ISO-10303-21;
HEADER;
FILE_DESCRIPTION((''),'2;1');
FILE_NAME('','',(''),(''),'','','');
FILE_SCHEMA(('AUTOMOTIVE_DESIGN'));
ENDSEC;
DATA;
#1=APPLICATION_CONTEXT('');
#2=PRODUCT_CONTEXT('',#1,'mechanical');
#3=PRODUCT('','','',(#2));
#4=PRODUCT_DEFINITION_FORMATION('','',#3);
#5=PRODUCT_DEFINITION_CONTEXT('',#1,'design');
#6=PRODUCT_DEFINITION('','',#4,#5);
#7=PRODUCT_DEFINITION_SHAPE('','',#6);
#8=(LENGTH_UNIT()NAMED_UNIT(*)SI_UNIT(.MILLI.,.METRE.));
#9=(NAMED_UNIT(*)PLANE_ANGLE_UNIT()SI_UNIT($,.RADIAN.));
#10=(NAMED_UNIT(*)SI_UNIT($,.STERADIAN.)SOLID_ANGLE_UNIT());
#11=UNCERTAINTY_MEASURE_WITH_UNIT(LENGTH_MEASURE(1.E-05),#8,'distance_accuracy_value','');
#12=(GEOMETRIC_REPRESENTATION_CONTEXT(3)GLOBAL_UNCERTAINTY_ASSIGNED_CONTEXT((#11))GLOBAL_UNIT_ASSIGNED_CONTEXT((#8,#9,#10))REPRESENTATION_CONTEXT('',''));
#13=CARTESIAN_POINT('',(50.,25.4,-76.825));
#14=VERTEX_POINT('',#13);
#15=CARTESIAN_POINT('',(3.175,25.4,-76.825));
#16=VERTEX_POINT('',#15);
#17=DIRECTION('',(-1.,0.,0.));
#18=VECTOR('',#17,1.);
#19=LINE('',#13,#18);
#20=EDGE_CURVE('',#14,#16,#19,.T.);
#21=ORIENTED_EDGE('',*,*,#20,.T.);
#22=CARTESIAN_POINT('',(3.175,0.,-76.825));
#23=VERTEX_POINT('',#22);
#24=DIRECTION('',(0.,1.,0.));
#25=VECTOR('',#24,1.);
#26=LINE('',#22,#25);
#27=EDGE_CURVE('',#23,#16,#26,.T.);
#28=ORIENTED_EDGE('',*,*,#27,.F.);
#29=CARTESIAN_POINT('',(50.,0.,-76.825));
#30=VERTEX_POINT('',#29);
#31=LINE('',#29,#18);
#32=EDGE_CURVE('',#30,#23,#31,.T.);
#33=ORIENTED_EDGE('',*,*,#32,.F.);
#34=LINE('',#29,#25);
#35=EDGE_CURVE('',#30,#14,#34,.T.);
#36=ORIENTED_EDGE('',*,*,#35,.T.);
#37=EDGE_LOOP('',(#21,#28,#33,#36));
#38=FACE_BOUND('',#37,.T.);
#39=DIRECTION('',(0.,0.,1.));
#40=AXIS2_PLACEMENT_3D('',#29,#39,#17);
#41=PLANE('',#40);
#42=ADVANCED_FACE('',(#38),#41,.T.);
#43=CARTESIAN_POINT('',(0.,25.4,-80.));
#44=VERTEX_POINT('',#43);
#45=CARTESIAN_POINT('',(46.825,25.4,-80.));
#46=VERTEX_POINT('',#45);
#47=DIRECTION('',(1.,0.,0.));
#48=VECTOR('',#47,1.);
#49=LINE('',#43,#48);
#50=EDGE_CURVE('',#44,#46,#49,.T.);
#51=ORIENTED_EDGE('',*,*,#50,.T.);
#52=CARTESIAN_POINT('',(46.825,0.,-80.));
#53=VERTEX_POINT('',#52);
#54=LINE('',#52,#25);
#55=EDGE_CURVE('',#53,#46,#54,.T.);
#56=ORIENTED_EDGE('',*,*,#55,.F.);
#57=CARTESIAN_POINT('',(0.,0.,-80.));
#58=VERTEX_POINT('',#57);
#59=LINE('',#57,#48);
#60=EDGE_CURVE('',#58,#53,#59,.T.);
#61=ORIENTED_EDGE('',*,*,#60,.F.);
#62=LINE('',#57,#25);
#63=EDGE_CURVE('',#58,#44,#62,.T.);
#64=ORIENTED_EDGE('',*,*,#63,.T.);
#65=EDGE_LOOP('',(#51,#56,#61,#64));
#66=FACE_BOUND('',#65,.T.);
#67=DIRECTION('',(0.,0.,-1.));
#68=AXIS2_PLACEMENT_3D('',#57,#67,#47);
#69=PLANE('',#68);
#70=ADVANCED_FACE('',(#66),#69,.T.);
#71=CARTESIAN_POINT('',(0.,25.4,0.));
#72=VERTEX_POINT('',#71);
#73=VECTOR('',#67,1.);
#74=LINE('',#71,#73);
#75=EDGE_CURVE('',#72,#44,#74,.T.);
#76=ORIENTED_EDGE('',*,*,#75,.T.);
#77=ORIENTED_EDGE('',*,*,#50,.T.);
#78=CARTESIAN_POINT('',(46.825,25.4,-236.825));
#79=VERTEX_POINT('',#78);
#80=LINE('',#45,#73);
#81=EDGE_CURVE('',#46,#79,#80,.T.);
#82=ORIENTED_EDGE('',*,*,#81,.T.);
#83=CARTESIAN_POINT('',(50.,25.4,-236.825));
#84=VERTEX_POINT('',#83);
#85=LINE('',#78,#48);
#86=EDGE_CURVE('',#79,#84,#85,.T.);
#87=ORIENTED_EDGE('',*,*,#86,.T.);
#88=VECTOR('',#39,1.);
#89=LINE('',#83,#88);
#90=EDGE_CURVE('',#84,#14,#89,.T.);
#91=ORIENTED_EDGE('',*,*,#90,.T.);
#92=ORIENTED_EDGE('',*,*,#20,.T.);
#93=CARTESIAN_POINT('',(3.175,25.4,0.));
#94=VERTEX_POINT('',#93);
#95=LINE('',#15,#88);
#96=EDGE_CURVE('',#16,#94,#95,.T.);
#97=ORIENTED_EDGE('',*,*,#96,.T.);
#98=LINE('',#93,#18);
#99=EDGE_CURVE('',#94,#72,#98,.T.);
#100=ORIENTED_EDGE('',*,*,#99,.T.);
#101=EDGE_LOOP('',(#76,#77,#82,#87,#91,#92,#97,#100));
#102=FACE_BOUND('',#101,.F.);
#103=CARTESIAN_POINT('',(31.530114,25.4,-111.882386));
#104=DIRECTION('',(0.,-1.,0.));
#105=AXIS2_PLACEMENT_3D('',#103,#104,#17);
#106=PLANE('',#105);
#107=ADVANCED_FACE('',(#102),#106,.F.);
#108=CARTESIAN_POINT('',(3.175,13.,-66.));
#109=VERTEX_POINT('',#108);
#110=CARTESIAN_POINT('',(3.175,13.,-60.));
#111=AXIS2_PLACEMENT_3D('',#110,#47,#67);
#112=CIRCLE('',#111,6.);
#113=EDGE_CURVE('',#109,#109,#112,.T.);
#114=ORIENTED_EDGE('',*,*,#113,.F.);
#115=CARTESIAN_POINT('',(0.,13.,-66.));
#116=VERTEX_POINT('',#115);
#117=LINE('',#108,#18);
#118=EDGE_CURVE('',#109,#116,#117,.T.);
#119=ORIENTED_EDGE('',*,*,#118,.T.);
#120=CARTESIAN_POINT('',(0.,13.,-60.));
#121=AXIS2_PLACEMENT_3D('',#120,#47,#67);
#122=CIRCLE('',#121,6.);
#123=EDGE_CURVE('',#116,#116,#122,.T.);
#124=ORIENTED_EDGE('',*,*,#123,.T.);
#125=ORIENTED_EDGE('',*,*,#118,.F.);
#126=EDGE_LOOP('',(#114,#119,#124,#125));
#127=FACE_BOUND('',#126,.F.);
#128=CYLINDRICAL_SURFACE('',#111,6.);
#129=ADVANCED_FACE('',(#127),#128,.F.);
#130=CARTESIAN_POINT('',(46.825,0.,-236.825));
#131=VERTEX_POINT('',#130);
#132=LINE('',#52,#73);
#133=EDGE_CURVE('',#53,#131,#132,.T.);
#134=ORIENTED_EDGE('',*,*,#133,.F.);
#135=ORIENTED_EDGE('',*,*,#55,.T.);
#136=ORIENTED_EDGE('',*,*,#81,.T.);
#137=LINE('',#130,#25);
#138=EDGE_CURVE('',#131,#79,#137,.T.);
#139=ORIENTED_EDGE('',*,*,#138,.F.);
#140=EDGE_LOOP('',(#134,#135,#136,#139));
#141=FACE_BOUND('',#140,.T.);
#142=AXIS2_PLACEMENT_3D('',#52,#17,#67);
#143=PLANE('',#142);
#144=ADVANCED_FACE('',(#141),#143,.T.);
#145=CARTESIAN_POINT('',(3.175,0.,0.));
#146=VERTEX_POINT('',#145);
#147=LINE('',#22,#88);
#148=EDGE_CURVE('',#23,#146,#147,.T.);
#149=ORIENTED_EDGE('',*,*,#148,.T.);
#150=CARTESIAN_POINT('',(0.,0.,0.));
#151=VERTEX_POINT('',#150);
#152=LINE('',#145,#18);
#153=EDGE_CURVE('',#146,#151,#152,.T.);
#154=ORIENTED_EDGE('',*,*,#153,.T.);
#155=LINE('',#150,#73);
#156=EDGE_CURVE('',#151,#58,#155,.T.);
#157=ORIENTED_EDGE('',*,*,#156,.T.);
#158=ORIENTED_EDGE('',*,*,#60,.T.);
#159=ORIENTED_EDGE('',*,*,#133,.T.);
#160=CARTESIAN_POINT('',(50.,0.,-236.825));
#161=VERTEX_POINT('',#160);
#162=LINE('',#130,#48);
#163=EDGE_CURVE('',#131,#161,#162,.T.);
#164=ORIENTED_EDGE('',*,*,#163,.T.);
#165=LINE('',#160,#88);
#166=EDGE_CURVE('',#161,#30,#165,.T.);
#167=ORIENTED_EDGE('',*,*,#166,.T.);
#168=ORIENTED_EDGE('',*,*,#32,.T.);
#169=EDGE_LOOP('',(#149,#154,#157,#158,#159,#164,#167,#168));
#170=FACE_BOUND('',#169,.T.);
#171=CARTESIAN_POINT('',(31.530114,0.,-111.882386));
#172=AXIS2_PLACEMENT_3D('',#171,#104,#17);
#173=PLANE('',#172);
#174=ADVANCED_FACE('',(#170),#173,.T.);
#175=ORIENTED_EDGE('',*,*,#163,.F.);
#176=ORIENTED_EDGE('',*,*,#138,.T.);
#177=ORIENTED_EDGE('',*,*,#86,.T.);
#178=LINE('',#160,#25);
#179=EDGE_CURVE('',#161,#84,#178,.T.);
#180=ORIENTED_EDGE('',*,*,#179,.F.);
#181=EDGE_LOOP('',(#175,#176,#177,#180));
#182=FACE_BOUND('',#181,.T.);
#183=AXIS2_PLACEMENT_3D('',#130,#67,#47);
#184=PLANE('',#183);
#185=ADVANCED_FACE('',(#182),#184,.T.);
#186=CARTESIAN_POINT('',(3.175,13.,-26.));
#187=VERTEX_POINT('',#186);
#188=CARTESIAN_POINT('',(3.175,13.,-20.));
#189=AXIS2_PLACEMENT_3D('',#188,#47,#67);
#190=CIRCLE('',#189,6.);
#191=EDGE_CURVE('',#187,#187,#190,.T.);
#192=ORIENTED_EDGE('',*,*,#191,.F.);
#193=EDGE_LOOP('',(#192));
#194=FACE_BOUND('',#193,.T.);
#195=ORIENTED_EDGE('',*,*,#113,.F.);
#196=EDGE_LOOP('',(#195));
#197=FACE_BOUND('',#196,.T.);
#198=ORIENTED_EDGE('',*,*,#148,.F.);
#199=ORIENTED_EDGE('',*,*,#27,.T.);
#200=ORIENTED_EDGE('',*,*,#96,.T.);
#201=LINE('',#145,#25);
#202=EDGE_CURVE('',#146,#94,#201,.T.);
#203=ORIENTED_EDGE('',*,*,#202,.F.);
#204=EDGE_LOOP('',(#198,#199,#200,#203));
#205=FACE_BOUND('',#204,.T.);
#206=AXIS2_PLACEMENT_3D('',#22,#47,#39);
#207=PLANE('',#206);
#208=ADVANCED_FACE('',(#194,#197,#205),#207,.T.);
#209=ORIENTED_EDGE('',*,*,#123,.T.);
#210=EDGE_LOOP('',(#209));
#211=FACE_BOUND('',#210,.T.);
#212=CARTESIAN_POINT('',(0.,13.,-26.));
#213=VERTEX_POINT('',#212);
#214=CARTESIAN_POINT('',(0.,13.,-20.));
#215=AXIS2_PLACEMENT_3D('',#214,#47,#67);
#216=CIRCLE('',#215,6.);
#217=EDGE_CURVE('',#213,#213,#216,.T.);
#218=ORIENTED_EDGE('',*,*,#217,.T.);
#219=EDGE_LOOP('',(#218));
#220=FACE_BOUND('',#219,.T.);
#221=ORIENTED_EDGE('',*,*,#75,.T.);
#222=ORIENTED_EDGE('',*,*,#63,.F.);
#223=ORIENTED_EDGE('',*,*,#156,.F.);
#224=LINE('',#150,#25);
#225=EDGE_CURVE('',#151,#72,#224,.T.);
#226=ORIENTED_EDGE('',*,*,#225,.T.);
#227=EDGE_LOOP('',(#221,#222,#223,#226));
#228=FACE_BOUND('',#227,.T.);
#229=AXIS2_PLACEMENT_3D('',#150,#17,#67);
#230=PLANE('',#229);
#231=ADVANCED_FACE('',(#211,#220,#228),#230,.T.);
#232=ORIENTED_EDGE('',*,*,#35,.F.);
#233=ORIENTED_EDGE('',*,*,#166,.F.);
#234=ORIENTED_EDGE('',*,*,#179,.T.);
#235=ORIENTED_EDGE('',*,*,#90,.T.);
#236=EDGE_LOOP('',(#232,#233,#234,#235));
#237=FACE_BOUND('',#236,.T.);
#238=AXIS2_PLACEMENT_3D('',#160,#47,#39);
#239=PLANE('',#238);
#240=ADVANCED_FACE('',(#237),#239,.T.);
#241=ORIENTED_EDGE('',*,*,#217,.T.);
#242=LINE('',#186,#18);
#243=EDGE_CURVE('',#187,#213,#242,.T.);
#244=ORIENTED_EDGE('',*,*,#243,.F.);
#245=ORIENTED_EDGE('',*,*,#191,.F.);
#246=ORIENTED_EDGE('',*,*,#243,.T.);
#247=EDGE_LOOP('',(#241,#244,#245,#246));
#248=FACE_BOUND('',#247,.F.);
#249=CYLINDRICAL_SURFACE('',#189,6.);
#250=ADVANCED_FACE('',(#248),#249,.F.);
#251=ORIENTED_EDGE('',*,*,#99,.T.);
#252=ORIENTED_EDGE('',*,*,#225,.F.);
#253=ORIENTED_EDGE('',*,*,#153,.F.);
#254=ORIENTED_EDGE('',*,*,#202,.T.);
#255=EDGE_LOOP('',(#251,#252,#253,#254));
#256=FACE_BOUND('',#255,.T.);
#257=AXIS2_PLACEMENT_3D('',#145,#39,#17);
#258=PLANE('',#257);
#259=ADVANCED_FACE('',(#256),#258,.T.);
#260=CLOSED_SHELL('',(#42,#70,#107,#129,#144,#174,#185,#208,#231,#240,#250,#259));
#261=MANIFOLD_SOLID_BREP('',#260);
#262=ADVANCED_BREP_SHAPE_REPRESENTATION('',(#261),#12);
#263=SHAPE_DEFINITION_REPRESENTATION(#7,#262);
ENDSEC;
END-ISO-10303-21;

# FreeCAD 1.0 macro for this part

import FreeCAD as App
import Part
import Sketcher
Q = App.Units.Quantity

doc = App.newDocument("Part")
body = doc.addObject("PartDesign::Body", "Body")

# Sketch on XZ plane
sketch1 = doc.addObject("Sketcher::SketchObject", "Sketch")
body.addObject(sketch1)
sketch1.AttachmentSupport = (doc.XZ_Plane, [""])
sketch1.MapMode = "FlatFace"
sketch1.addGeometry([
    Part.LineSegment(App.Vector(0, -80, 0), App.Vector(0, 0, 0)),  # 0
    Part.LineSegment(App.Vector(0, 0, 0), App.Vector(3.175, 0, 0)),  # 1
    Part.LineSegment(App.Vector(3.175, 0, 0), App.Vector(3.175, -76.825, 0)),  # 2
    Part.LineSegment(App.Vector(3.175, -76.825, 0), App.Vector(50, -76.825, 0)),  # 3
    Part.LineSegment(App.Vector(50, -76.825, 0), App.Vector(50, -236.825, 0)),  # 4
    Part.LineSegment(App.Vector(50, -236.825, 0), App.Vector(46.825, -236.825, 0)),  # 5
    Part.LineSegment(App.Vector(46.825, -236.825, 0), App.Vector(46.825, -80, 0)),  # 6
    Part.LineSegment(App.Vector(46.825, -80, 0), App.Vector(0, -80, 0)),  # 7
], False)
sketch1.addConstraint([
    Sketcher.Constraint("Coincident", 0, 2, 1, 1),
    Sketcher.Constraint("Coincident", 1, 2, 2, 1),
    Sketcher.Constraint("Coincident", 2, 2, 3, 1),
    Sketcher.Constraint("Coincident", 3, 2, 4, 1),
    Sketcher.Constraint("Coincident", 4, 2, 5, 1),
    Sketcher.Constraint("Coincident", 5, 2, 6, 1),
    Sketcher.Constraint("Coincident", 6, 2, 7, 1),
    Sketcher.Constraint("Coincident", 7, 2, 0, 1),
    Sketcher.Constraint("Vertical", 0),
    Sketcher.Constraint("Horizontal", 1),
    Sketcher.Constraint("Vertical", 2),
    Sketcher.Constraint("Horizontal", 3),
    Sketcher.Constraint("Vertical", 4),
    Sketcher.Constraint("Horizontal", 5),
    Sketcher.Constraint("Vertical", 6),
    Sketcher.Constraint("Horizontal", 7),
    Sketcher.Constraint("Coincident", 0, 2, -1, 1),
    Sketcher.Constraint("Equal", 1, 5),
    Sketcher.Constraint("DistanceY", 0, 1, 0, 2, Q("80 mm")),
    Sketcher.Constraint("DistanceY", 4, 2, 4, 1, Q("160 mm")),
    Sketcher.Constraint("DistanceX", -1, 1, 3, 2, Q("50 mm")),
    Sketcher.Constraint("DistanceX", 1, 1, 1, 2, Q("3.175 mm")),
    Sketcher.Constraint("DistanceY", 2, 2, 2, 1, Q("76.825 mm")),
])
pad1 = doc.addObject("PartDesign::Pad", "Pad")
body.addObject(pad1)
pad1.Profile = sketch1
pad1.Length = 25.4
pad1.Reversed = True

# Sketch on YZ plane
sketch2 = doc.addObject("Sketcher::SketchObject", "Sketch001")
body.addObject(sketch2)
sketch2.AttachmentSupport = (doc.YZ_Plane, [""])
sketch2.MapMode = "FlatFace"
sketch2.AttachmentOffset = App.Placement(App.Vector(0, 0, 3.175), App.Rotation())
sketch2.addGeometry([
    Part.Circle(App.Vector(13, -60, 0), App.Vector(0, 0, 1), 6),
    Part.Circle(App.Vector(13, -20, 0), App.Vector(0, 0, 1), 6),
], False)
sketch2.addConstraint([
    Sketcher.Constraint("Equal", 0, 1),
    Sketcher.Constraint("Vertical", 0, 3, 1, 3),
    Sketcher.Constraint("Diameter", 0, Q("12 mm")),
    Sketcher.Constraint("DistanceX", -1, 1, 0, 3, Q("13 mm")),
    Sketcher.Constraint("DistanceY", 0, 3, -1, 1, Q("60 mm")),
    Sketcher.Constraint("DistanceY", 1, 3, -1, 1, Q("20 mm")),
])
pocket1 = doc.addObject("PartDesign::Pocket", "Pocket")
body.addObject(pocket1)
pocket1.Profile = sketch2
pocket1.Length = 25.4

doc.recompute()
